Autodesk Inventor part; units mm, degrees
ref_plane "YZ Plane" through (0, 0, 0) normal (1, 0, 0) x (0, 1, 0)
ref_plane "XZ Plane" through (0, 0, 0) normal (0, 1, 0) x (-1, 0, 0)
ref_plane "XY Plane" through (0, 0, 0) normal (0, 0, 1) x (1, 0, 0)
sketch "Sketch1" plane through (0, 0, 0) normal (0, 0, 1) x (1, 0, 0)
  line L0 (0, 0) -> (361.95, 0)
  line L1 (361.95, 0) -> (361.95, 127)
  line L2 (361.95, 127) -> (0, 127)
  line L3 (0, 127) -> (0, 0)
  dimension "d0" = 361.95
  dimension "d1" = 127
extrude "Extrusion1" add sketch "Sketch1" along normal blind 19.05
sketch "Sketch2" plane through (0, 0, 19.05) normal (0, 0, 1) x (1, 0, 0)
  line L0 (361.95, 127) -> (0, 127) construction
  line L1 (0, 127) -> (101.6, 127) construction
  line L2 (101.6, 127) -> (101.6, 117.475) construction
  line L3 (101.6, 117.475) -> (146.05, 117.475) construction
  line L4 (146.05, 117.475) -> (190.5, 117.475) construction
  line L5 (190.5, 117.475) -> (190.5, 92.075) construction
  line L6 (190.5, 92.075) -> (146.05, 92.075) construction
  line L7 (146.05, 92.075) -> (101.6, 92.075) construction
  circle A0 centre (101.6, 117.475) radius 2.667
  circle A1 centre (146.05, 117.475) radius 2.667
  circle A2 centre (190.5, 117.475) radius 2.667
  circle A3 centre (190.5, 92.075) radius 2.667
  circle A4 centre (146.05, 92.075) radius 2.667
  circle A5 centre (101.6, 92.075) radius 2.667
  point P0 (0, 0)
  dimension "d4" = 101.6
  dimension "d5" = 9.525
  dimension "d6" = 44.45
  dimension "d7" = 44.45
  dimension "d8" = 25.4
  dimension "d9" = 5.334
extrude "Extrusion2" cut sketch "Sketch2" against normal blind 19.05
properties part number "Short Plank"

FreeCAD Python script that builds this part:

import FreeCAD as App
import Part
import Sketcher
from FreeCAD import Vector
Q = App.Units.Quantity

doc = App.newDocument("Part")
body = doc.addObject("PartDesign::Body", "Body")

sketch1 = body.newObject("Sketcher::SketchObject", "Sketch")
sketch1.AttachmentSupport = (doc.getObject("XY_Plane"), [""])
sketch1.MapMode = "FlatFace"
sketch1.addGeometry([
    Part.LineSegment(Vector(0, 127, 0), Vector(0, 0, 0)),
    Part.LineSegment(Vector(0, 0, 0), Vector(361.95, 0, 0)),
    Part.LineSegment(Vector(361.95, 0, 0), Vector(361.95, 127, 0)),
    Part.LineSegment(Vector(361.95, 127, 0), Vector(0, 127, 0)),
], False)
sketch1.addConstraint([
    Sketcher.Constraint("Coincident", 0, 2, 1, 1),
    Sketcher.Constraint("Coincident", 1, 2, 2, 1),
    Sketcher.Constraint("Coincident", 2, 2, 3, 1),
    Sketcher.Constraint("Coincident", 3, 2, 0, 1),
    Sketcher.Constraint("Vertical", 0),
    Sketcher.Constraint("Horizontal", 1),
    Sketcher.Constraint("Vertical", 2),
    Sketcher.Constraint("Horizontal", 3),
    Sketcher.Constraint("Coincident", 0, 2, -1, 1),
    Sketcher.Constraint("DistanceY", 0, 2, 0, 1, Q("5 in")),
    Sketcher.Constraint("DistanceX", 1, 1, 1, 2, Q("14.25 in")),
])
pad1 = body.newObject("PartDesign::Pad", "Pad")
pad1.Profile = sketch1
pad1.Length = Q("0.75 in")

sketch2 = body.newObject("Sketcher::SketchObject", "Sketch001")
sketch2.AttachmentSupport = (doc.getObject("XY_Plane"), [""])
sketch2.MapMode = "FlatFace"
sketch2.AttachmentOffset = App.Placement(Vector(0, 0, 0.75 * 25.4), App.Rotation())
sketch2.addGeometry([
    Part.Circle(Vector(101.6, 117.475, 0), Vector(0, 0, 1), 2.667),
    Part.Circle(Vector(146.05, 117.475, 0), Vector(0, 0, 1), 2.667),
    Part.Circle(Vector(190.5, 117.475, 0), Vector(0, 0, 1), 2.667),
    Part.Circle(Vector(190.5, 92.075, 0), Vector(0, 0, 1), 2.667),
    Part.Circle(Vector(146.05, 92.075, 0), Vector(0, 0, 1), 2.667),
    Part.Circle(Vector(101.6, 92.075, 0), Vector(0, 0, 1), 2.667),
], False)
sketch2.addConstraint([
    Sketcher.Constraint("Equal", 0, 1),
    Sketcher.Constraint("Equal", 1, 2),
    Sketcher.Constraint("Equal", 2, 3),
    Sketcher.Constraint("Equal", 3, 4),
    Sketcher.Constraint("Equal", 4, 5),
    Sketcher.Constraint("Horizontal", 0, 3, 1, 3),
    Sketcher.Constraint("Horizontal", 1, 3, 2, 3),
    Sketcher.Constraint("Horizontal", 3, 3, 4, 3),
    Sketcher.Constraint("Horizontal", 4, 3, 5, 3),
    Sketcher.Constraint("Vertical", 2, 3, 3, 3),
    Sketcher.Constraint("Vertical", 1, 3, 4, 3),
    Sketcher.Constraint("Vertical", 0, 3, 5, 3),
    Sketcher.Constraint("Diameter", 0, Q("0.21 in")),
    Sketcher.Constraint("DistanceX", -1, 1, 0, 3, Q("4 in")),
    Sketcher.Constraint("DistanceY", 3, 3, 2, 3, Q("1 in")),
    Sketcher.Constraint("DistanceX", 0, 3, 1, 3, Q("1.75 in")),
    Sketcher.Constraint("DistanceX", 1, 3, 2, 3, Q("1.75 in")),
    Sketcher.Constraint("DistanceY", -1, 1, 0, 3, Q("4.625 in")),
])
pocket1 = body.newObject("PartDesign::Pocket", "Pocket")
pocket1.Profile = sketch2
pocket1.Length = Q("0.75 in")

doc.recompute()
